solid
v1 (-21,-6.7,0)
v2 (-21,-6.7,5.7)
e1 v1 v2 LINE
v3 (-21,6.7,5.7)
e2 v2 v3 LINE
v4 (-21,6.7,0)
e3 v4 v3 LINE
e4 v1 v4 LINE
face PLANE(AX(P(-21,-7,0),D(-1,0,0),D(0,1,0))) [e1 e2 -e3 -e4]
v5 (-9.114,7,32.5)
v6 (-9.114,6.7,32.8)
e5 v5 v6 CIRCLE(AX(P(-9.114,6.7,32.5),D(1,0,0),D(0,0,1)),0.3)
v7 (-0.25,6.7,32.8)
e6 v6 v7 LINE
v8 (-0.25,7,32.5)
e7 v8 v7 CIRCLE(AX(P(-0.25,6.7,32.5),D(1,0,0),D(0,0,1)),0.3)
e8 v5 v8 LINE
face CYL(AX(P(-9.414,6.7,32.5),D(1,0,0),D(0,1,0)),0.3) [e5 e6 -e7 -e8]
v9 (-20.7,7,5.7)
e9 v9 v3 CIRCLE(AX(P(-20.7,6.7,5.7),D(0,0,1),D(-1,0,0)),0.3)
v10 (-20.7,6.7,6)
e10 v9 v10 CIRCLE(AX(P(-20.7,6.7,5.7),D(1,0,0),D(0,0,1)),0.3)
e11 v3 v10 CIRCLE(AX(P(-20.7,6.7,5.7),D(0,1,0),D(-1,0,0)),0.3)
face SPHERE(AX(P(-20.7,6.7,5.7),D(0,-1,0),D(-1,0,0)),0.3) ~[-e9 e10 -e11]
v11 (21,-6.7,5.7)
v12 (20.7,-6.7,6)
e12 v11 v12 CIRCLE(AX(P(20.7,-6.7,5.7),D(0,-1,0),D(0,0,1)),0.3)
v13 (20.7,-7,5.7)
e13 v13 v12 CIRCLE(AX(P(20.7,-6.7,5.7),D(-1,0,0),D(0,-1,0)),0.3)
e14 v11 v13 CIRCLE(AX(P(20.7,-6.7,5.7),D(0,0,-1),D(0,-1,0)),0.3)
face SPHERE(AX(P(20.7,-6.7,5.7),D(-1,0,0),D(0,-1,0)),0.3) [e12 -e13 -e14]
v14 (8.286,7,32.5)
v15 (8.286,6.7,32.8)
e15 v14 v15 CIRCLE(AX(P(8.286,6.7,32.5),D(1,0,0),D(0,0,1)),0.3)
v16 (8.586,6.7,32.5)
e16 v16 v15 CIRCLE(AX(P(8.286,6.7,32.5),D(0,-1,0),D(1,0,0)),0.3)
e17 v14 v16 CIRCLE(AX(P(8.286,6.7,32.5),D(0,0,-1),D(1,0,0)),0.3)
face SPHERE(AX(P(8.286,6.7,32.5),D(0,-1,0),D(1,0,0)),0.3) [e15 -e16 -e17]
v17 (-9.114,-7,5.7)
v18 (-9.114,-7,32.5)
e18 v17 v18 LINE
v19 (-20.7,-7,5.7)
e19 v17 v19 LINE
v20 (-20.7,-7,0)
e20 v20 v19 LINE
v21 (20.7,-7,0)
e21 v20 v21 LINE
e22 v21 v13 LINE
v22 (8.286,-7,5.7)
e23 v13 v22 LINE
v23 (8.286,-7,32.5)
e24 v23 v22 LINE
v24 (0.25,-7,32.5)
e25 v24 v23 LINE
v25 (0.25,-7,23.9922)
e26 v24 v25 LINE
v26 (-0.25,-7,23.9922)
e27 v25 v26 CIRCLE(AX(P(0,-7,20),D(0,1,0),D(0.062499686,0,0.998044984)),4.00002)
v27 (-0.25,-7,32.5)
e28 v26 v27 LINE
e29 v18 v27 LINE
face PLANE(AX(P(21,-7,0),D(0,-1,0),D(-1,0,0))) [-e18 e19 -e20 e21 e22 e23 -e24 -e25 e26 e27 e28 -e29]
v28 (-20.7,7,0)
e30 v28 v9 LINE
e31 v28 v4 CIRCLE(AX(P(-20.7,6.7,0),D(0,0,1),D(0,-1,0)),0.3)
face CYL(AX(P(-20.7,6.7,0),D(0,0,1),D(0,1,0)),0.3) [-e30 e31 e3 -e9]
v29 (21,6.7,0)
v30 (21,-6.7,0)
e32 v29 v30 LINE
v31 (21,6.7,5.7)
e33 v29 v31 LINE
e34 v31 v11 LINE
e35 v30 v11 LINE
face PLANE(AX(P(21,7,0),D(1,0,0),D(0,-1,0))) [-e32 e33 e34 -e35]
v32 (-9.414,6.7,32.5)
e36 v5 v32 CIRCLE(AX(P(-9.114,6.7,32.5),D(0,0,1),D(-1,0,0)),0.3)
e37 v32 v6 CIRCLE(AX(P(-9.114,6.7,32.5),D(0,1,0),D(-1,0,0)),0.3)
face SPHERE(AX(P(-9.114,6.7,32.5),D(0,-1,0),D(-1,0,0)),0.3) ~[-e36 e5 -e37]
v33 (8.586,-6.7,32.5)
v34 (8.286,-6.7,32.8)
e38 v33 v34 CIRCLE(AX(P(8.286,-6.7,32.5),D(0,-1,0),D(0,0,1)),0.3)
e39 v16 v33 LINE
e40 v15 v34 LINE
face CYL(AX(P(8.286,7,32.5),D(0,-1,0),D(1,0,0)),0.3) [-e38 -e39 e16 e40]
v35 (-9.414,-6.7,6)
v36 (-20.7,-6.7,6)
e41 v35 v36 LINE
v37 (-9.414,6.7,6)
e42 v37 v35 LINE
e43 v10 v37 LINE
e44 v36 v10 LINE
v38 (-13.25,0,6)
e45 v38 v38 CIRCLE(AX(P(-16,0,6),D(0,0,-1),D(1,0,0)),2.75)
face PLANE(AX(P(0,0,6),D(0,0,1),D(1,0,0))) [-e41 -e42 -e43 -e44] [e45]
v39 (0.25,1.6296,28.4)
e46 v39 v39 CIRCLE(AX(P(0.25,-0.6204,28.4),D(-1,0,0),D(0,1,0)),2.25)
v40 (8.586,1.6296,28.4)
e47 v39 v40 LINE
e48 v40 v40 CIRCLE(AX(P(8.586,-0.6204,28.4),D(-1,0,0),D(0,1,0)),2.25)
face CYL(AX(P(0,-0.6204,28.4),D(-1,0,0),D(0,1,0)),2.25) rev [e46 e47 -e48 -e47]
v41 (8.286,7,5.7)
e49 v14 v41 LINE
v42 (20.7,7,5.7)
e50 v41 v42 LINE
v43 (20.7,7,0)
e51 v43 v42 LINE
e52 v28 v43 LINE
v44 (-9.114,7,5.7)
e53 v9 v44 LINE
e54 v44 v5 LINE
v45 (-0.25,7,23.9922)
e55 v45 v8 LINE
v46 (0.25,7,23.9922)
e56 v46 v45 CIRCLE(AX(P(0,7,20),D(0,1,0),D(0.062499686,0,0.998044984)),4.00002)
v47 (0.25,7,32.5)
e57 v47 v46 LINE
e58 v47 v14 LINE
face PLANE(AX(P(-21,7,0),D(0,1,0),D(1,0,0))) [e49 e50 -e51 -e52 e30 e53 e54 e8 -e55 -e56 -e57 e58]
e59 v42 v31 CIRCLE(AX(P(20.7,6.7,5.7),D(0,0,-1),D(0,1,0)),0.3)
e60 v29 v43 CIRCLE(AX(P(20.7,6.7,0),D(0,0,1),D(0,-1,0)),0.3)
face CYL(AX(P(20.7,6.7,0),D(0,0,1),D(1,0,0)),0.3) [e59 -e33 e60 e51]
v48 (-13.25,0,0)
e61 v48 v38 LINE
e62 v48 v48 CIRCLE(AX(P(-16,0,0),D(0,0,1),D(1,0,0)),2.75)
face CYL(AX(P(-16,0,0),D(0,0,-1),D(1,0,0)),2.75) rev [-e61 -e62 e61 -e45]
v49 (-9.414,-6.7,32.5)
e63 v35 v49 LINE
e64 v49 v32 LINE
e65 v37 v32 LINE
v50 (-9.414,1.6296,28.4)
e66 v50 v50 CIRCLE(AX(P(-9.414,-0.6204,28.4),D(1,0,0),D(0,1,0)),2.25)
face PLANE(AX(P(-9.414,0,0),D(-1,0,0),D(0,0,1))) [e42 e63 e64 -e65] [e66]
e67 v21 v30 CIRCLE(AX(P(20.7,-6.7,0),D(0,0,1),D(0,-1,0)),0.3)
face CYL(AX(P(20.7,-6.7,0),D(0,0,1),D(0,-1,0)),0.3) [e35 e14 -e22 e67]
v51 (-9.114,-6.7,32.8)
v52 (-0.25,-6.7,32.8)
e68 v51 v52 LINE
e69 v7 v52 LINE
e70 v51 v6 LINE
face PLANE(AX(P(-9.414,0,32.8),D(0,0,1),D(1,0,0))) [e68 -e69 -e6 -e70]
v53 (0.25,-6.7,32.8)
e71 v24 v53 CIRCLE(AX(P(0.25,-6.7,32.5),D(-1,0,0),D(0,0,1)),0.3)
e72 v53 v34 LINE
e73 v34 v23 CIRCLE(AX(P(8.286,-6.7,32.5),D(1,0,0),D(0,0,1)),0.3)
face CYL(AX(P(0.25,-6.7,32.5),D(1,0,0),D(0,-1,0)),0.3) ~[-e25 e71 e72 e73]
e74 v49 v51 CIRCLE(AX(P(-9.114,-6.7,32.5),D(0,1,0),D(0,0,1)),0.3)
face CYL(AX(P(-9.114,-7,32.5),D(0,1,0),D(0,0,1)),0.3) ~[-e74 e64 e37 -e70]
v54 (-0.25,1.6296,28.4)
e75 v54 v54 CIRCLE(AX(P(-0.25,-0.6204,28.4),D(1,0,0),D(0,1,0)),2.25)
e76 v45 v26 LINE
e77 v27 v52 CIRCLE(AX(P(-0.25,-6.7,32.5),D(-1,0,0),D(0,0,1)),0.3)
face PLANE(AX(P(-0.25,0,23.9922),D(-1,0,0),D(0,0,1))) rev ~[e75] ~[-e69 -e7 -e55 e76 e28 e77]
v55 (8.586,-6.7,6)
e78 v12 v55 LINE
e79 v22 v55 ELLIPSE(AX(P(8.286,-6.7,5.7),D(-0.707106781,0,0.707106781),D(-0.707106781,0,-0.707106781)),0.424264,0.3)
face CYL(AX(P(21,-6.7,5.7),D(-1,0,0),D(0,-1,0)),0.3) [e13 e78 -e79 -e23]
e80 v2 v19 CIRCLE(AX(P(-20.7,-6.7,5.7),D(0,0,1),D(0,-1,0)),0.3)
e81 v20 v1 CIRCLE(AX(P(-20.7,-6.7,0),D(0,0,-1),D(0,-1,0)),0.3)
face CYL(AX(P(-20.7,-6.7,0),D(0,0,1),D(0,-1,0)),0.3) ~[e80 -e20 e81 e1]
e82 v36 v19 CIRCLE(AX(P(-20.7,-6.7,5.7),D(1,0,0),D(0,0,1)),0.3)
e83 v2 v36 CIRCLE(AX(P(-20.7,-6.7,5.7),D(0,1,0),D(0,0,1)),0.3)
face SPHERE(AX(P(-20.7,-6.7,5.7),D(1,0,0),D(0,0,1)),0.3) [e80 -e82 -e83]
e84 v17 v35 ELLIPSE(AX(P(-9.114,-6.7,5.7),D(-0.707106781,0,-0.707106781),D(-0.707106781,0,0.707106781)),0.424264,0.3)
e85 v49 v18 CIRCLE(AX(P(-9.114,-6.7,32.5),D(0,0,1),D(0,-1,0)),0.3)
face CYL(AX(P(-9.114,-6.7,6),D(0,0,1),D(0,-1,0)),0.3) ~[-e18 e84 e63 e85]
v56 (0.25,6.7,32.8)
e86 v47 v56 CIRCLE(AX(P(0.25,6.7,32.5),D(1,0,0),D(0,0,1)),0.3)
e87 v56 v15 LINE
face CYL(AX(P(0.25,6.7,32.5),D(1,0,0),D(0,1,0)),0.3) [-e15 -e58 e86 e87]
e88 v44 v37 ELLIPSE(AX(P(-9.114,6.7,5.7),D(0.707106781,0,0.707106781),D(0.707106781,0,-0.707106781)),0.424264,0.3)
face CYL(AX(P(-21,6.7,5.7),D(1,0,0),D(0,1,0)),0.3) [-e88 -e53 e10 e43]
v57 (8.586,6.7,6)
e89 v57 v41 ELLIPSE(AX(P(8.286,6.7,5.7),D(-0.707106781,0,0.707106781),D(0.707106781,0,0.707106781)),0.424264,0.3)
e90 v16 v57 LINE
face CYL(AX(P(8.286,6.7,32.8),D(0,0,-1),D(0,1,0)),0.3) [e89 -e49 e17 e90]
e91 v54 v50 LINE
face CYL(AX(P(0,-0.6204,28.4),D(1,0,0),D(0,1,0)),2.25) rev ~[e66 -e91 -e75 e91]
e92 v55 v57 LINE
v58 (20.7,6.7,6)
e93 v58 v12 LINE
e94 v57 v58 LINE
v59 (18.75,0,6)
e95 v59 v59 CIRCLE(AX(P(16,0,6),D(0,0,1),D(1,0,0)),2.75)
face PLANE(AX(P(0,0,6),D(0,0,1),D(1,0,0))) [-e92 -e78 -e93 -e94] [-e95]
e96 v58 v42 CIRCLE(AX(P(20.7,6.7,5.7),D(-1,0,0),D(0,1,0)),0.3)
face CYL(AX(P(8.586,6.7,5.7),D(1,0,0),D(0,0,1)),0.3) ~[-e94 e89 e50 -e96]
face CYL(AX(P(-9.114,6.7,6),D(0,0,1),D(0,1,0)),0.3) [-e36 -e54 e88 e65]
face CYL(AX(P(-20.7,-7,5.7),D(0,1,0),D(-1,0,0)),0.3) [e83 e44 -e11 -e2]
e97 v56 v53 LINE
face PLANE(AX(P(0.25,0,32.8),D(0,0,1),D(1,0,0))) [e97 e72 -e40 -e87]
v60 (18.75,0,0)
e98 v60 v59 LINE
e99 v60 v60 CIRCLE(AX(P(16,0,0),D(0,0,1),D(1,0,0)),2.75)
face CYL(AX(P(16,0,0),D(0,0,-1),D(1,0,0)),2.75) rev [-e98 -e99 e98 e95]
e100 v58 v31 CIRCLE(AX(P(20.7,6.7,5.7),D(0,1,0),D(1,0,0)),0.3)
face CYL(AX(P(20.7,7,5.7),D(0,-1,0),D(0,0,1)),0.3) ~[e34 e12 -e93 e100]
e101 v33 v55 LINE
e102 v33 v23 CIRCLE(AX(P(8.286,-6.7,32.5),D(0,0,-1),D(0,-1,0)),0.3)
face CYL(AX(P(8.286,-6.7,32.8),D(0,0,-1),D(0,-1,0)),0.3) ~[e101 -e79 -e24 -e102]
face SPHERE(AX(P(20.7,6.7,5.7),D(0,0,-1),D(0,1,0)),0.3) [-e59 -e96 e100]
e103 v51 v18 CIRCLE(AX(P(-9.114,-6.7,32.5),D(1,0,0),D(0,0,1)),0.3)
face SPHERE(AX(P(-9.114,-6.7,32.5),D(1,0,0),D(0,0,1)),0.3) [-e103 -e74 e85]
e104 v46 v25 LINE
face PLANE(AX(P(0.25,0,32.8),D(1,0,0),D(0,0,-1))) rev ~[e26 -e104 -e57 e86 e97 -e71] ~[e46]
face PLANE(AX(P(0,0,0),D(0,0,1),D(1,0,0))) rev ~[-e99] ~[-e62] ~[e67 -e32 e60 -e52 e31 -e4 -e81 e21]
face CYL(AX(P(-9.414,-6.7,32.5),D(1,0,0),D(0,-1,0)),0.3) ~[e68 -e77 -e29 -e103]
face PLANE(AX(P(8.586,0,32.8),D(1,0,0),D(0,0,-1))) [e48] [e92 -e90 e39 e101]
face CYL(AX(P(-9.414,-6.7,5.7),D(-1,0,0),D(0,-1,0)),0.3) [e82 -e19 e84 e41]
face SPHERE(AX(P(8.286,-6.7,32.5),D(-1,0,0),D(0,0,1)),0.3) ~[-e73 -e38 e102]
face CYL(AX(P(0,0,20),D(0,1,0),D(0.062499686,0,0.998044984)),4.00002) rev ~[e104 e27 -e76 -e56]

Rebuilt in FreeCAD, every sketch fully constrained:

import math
import FreeCAD as App
import Part
import Sketcher
from FreeCAD import Vector
Q = App.Units.Quantity


def edges_at(feature, points):
    """Names of the edges that pass closest to the given points."""
    edges = feature.Shape.Edges
    near = lambda p: min(range(len(edges)), key=lambda i: edges[i].distToShape(Part.Vertex(*p))[0])
    return sorted({f"Edge{near(p) + 1}" for p in points})


def add_polygon(sketch, points):
    """Adds a closed chain of lines whose ends are joined by coincident constraints."""
    first, n = sketch.GeometryCount, len(points)
    for a, b in zip(points, points[1:] + points[:1]):
        sketch.addGeometry(Part.LineSegment(App.Vector(*a, 0), App.Vector(*b, 0)), False)
    for i in range(n):
        sketch.addConstraint(Sketcher.Constraint("Coincident", first + i, 2, first + (i + 1) % n, 1))

doc = App.newDocument("Part")
body = doc.addObject("PartDesign::Body", "Body")

# Sketch on XY plane
sketch1 = body.newObject("Sketcher::SketchObject", "Sketch")
sketch1.AttachmentSupport = (doc.getObject("XY_Plane"), [""])
sketch1.MapMode = "FlatFace"
add_polygon(sketch1, [(-21, -7), (21, -7), (21, 7), (-21, 7)])  # lines 0-3
sketch1.addGeometry(Part.Circle(Vector(-16, 0, 0), Vector(0, 0, 1), 2.75), False)  # 4
sketch1.addGeometry(Part.Circle(Vector(16, 0, 0), Vector(0, 0, 1), 2.75), False)  # 5
sketch1.addConstraint([
    Sketcher.Constraint("Horizontal", 0),
    Sketcher.Constraint("Vertical", 1),
    Sketcher.Constraint("Horizontal", 2),
    Sketcher.Constraint("Vertical", 3),
    Sketcher.Constraint("Equal", 4, 5),
    Sketcher.Constraint("Symmetric", 4, 3, 5, 3, -1, 1),
    Sketcher.Constraint("Symmetric", 0, 2, 2, 2, -1, 1),
    Sketcher.Constraint("PointOnObject", 4, 3, -1),
    Sketcher.Constraint("Diameter", 4, Q("5.5 mm")),
    Sketcher.Constraint("DistanceX", 0, 1, 0, 2, Q("42 mm")),
    Sketcher.Constraint("DistanceY", 1, 1, 1, 2, Q("14 mm")),
    Sketcher.Constraint("DistanceX", 4, 3, -1, 1, Q("16 mm")),
])
pad1 = body.newObject("PartDesign::Pad", "Pad")
pad1.Profile = sketch1
pad1.Length = 6

# Sketch on XZ plane
sketch2 = body.newObject("Sketcher::SketchObject", "Sketch001")
sketch2.AttachmentSupport = (doc.getObject("XZ_Plane"), [""])
sketch2.MapMode = "FlatFace"
sketch2.addGeometry([
    Part.LineSegment(Vector(8.586, 32.8, 0), Vector(8.586, 0, 0)),  # 0
    Part.LineSegment(Vector(8.586, 0, 0), Vector(-9.414, 0, 0)),  # 1
    Part.LineSegment(Vector(-9.414, 0, 0), Vector(-9.414, 32.8, 0)),  # 2
    Part.LineSegment(Vector(-9.414, 32.8, 0), Vector(-0.25, 32.8, 0)),  # 3
    Part.LineSegment(Vector(-0.25, 32.8, 0), Vector(-0.25, 23.9922, 0)),  # 4
    Part.ArcOfCircle(Part.Circle(Vector(0, 20, 0), Vector(0, 0, 1), 4.00002), math.radians(93.583304), math.radians(446.416696)),  # 5
    Part.LineSegment(Vector(0.25, 23.9922, 0), Vector(0.25, 32.8, 0)),  # 6
    Part.LineSegment(Vector(0.25, 32.8, 0), Vector(8.586, 32.8, 0)),  # 7
], False)
sketch2.addConstraint([
    Sketcher.Constraint("Coincident", 0, 2, 1, 1),
    Sketcher.Constraint("Coincident", 1, 2, 2, 1),
    Sketcher.Constraint("Coincident", 2, 2, 3, 1),
    Sketcher.Constraint("Coincident", 3, 2, 4, 1),
    Sketcher.Constraint("Coincident", 4, 2, 5, 1),
    Sketcher.Constraint("Coincident", 5, 2, 6, 1),
    Sketcher.Constraint("Coincident", 6, 2, 7, 1),
    Sketcher.Constraint("Coincident", 7, 2, 0, 1),
    Sketcher.Constraint("Vertical", 0),
    Sketcher.Constraint("Horizontal", 1),
    Sketcher.Constraint("Vertical", 2),
    Sketcher.Constraint("Horizontal", 3),
    Sketcher.Constraint("Vertical", 4),
    Sketcher.Constraint("Vertical", 6),
    Sketcher.Constraint("Horizontal", 7),
    Sketcher.Constraint("Symmetric", 4, 2, 5, 2, -2),
    Sketcher.Constraint("PointOnObject", 0, 2, -1),
    Sketcher.Constraint("Horizontal", 3, 2, 6, 2),
    Sketcher.Constraint("Radius", 5, Q("4 mm")),
    Sketcher.Constraint("DistanceX", 1, 2, 1, 1, Q("18 mm")),
    Sketcher.Constraint("DistanceY", 0, 2, 0, 1, Q("32.8 mm")),
    Sketcher.Constraint("DistanceY", -1, 1, 5, 3, Q("20 mm")),
    Sketcher.Constraint("DistanceX", 4, 2, 5, 2, Q("0.5 mm")),
    Sketcher.Constraint("DistanceX", 3, 1, 3, 2, Q("9.164 mm")),
])
pad2 = body.newObject("PartDesign::Pad", "Pad001")
pad2.Profile = sketch2
pad2.Length = 14
pad2.Midplane = True
doc.recompute()

fillet = body.newObject("PartDesign::Fillet", "Fillet")
fillet.Base = (pad2, edges_at(pad2, [
    (-4.832, -7, 32.8),
    (4.418, -7, 32.8),
    (-15.207, -7, 6),
    (14.793, -7, 6),
    (-21, 0, 6),
    (-21, 7, 3),
    (-21, -7, 3),
    (21, -7, 3),
    (21, 7, 3),
    (14.793, 7, 6),
    (21, 0, 6),
    (-15.207, 7, 6),
    (8.586, 0, 32.8),
    (-9.414, 0, 32.8),
    (8.586, 7, 19.4),
    (-9.414, 7, 19.4),
    (8.586, -7, 19.4),
    (-9.414, -7, 19.4),
    (-4.832, 7, 32.8),
    (4.418, 7, 32.8),
]))
fillet.Radius = 0.3

# Sketch on YZ plane
sketch3 = body.newObject("Sketcher::SketchObject", "Sketch002")
sketch3.AttachmentSupport = (doc.getObject("YZ_Plane"), [""])
sketch3.MapMode = "FlatFace"
sketch3.addGeometry(Part.Circle(Vector(-0.6204, 28.4, 0), Vector(0, 0, 1), 2.25), False)
sketch3.addConstraint([
    Sketcher.Constraint("Diameter", 0, Q("4.5 mm")),
    Sketcher.Constraint("DistanceY", -1, 1, 0, 3, Q("28.4 mm")),
    Sketcher.Constraint("DistanceX", 0, 3, -1, 1, Q("0.6204 mm")),
])
pocket1 = body.newObject("PartDesign::Pocket", "Pocket")
pocket1.Profile = sketch3
pocket1.Length = 20
pocket1.Midplane = True

doc.recompute()
